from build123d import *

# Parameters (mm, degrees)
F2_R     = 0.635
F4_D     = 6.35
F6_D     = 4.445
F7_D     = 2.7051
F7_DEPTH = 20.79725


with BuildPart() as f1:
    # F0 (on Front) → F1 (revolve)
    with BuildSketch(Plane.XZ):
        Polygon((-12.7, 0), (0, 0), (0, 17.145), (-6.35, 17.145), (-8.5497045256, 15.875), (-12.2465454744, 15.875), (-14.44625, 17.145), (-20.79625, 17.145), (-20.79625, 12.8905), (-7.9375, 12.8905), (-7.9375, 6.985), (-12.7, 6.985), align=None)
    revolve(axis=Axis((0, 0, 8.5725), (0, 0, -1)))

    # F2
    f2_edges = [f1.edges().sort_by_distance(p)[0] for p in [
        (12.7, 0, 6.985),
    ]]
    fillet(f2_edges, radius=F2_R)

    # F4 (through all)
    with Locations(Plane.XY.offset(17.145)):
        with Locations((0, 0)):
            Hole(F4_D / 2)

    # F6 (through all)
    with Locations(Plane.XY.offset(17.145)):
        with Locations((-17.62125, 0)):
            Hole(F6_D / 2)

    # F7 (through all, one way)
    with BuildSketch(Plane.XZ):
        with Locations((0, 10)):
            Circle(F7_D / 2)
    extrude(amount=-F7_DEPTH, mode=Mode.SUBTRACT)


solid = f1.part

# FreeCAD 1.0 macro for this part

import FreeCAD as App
import Part
import Sketcher
Q = App.Units.Quantity


def edges_at(feature, points):
    """Names of the edges that pass closest to the given points."""
    edges = feature.Shape.Edges
    near = lambda p: min(range(len(edges)), key=lambda i: edges[i].distToShape(Part.Vertex(*p))[0])
    return sorted({f"Edge{near(p) + 1}" for p in points})

doc = App.newDocument("Part")
params = doc.addObject("Spreadsheet::Sheet", "Params")
for row, (alias, value) in enumerate([
    ("sketch1_width", "0.5 in"),
    ("sketch1_length", "0.1 in"),
    ("sketch1_width2", "0.25 in"),
    ("sketch1_width3", "0.1875 in"),
    ("sketch1_height", "0.675 in"),
    ("revolution_angle", "360 deg"),
    ("fillet_radius", "0.025 in"),
    ("sketch2_diameter", "0.25 in"),
    ("hole_diameter", "0.25 in"),
    ("sketch3_diameter", "0.175 in"),
    ("hole2_diameter", "0.175 in"),
], start=1):
    params.set(f"A{row}", alias)
    params.set(f"B{row}", "=" + value)
    params.setAlias(f"B{row}", alias)

body = doc.addObject("PartDesign::Body", "Body")

sketch1 = body.newObject("Sketcher::SketchObject", "Sketch")
sketch1.AttachmentSupport = (doc.getObject("XZ_Plane"), [""])
sketch1.MapMode = "FlatFace"
sketch1.addGeometry([
    Part.LineSegment(App.Vector(-12.7, 0, 0), App.Vector(0, 0, 0)),
    Part.LineSegment(App.Vector(0, 0, 0), App.Vector(0, 17.1, 0)),
    Part.LineSegment(App.Vector(0, 17.1, 0), App.Vector(-6.3, 17.1, 0)),
    Part.LineSegment(App.Vector(-6.3, 17.1, 0), App.Vector(-8.5, 15.9, 0)),
    Part.LineSegment(App.Vector(-8.5, 15.9, 0), App.Vector(-12.2, 15.9, 0)),
    Part.LineSegment(App.Vector(-12.2, 15.9, 0), App.Vector(-14.4, 17.1, 0)),
    Part.LineSegment(App.Vector(-14.4, 17.1, 0), App.Vector(-20.8, 17.1, 0)),
    Part.LineSegment(App.Vector(-20.8, 17.1, 0), App.Vector(-20.8, 12.9, 0)),
    Part.LineSegment(App.Vector(-20.8, 12.9, 0), App.Vector(-7.9, 12.9, 0)),
    Part.LineSegment(App.Vector(-7.9, 12.9, 0), App.Vector(-7.9, 7, 0)),
    Part.LineSegment(App.Vector(-7.9, 7, 0), App.Vector(-12.7, 7, 0)),
    Part.LineSegment(App.Vector(-12.7, 7, 0), App.Vector(-12.7, 0, 0)),
], False)
sketch1.addConstraint([
    Sketcher.Constraint("Coincident", 0, 2, 1, 1),
    Sketcher.Constraint("Coincident", 1, 2, 2, 1),
    Sketcher.Constraint("Coincident", 2, 2, 3, 1),
    Sketcher.Constraint("Coincident", 3, 2, 4, 1),
    Sketcher.Constraint("Coincident", 4, 2, 5, 1),
    Sketcher.Constraint("Coincident", 5, 2, 6, 1),
    Sketcher.Constraint("Coincident", 6, 2, 7, 1),
    Sketcher.Constraint("Coincident", 7, 2, 8, 1),
    Sketcher.Constraint("Coincident", 8, 2, 9, 1),
    Sketcher.Constraint("Coincident", 9, 2, 10, 1),
    Sketcher.Constraint("Coincident", 10, 2, 11, 1),
    Sketcher.Constraint("Coincident", 11, 2, 0, 1),
    Sketcher.Constraint("Horizontal", 0),
    Sketcher.Constraint("Vertical", 1),
    Sketcher.Constraint("Horizontal", 2),
    Sketcher.Constraint("Horizontal", 4),
    Sketcher.Constraint("Horizontal", 6),
    Sketcher.Constraint("Vertical", 7),
    Sketcher.Constraint("Horizontal", 8),
    Sketcher.Constraint("Vertical", 9),
    Sketcher.Constraint("Horizontal", 10),
    Sketcher.Constraint("Vertical", 11),
    Sketcher.Constraint("Coincident", 0, 2, -1, 1),
    Sketcher.Constraint("Horizontal", 2, 2, 5, 2),
    Sketcher.Constraint("Equal", 2, 6),
    Sketcher.Constraint("Equal", 3, 5),
    Sketcher.Constraint("DistanceX", 0, 1, 0, 2, Q("0.5 in")),
    Sketcher.Constraint("Angle", 3, Q("-150 deg")),
    Sketcher.Constraint("Distance", 3, Q("0.1 in")),
    Sketcher.Constraint("DistanceX", 2, 2, 2, 1, Q("0.25 in")),
    Sketcher.Constraint("DistanceY", 9, 2, 2, 2, Q("0.4 in")),
    Sketcher.Constraint("DistanceX", 10, 2, 10, 1, Q("0.1875 in")),
    Sketcher.Constraint("DistanceY", 1, 1, 1, 2, Q("0.675 in")),
    Sketcher.Constraint("DistanceY", 7, 2, 7, 1, Q("0.1675 in")),
    Sketcher.Constraint("DistanceX", 4, 2, 4, 1, 3.696841),
])
sketch1.setExpression("Constraints[26]", "Params.sketch1_width")
sketch1.setExpression("Constraints[28]", "Params.sketch1_length")
sketch1.setExpression("Constraints[29]", "Params.sketch1_width2")
sketch1.setExpression("Constraints[31]", "Params.sketch1_width3")
sketch1.setExpression("Constraints[32]", "Params.sketch1_height")
revolution = body.newObject("PartDesign::Revolution", "Revolution")
revolution.Profile = sketch1
revolution.ReferenceAxis = (sketch1, ["V_Axis"])
revolution.setExpression("Angle", "Params.revolution_angle")
doc.recompute()

fillet = body.newObject("PartDesign::Fillet", "Fillet")
fillet.Base = (revolution, edges_at(revolution, [(12.7, 0, 6.985)]))
fillet.setExpression("Radius", "Params.fillet_radius")

sketch2 = body.newObject("Sketcher::SketchObject", "Sketch001")
sketch2.AttachmentSupport = (doc.getObject("XY_Plane"), [""])
sketch2.MapMode = "FlatFace"
sketch2.AttachmentOffset = App.Placement(App.Vector(0, 0, 0.675 * 25.4), App.Rotation())
sketch2.addGeometry(Part.Circle(App.Vector(0, 0, 0), App.Vector(0, 0, 1), 3.2), False)
sketch2.addConstraint([
    Sketcher.Constraint("Coincident", 0, 3, -1, 1),
    Sketcher.Constraint("Diameter", 0, Q("0.25 in")),
])
sketch2.setExpression("Constraints[1]", "Params.sketch2_diameter")
doc.recompute()
hole = body.newObject("PartDesign::Hole", "Hole")
hole.Profile = sketch2
hole.ThreadType = "None"
hole.setExpression("Diameter", "Params.hole_diameter")
hole.DepthType = "ThroughAll"

sketch3 = body.newObject("Sketcher::SketchObject", "Sketch002")
sketch3.AttachmentSupport = (doc.getObject("XY_Plane"), [""])
sketch3.MapMode = "FlatFace"
sketch3.AttachmentOffset = App.Placement(App.Vector(0, 0, 0.675 * 25.4), App.Rotation())
sketch3.addGeometry(Part.Circle(App.Vector(-17.6, 0, 0), App.Vector(0, 0, 1), 2.2), False)
sketch3.addConstraint([
    Sketcher.Constraint("PointOnObject", 0, 3, -1),
    Sketcher.Constraint("Diameter", 0, Q("0.175 in")),
    Sketcher.Constraint("DistanceX", 0, 3, -1, 1, 17.62125),
])
sketch3.setExpression("Constraints[1]", "Params.sketch3_diameter")
doc.recompute()
hole2 = body.newObject("PartDesign::Hole", "Hole001")
hole2.Profile = sketch3
hole2.ThreadType = "None"
hole2.setExpression("Diameter", "Params.hole2_diameter")
hole2.DepthType = "ThroughAll"

sketch4 = body.newObject("Sketcher::SketchObject", "Sketch003")
sketch4.AttachmentSupport = (doc.getObject("XZ_Plane"), [""])
sketch4.MapMode = "FlatFace"
sketch4.addGeometry(Part.Circle(App.Vector(0, 10, 0), App.Vector(0, 0, 1), 1.4), False)
sketch4.addConstraint([
    Sketcher.Constraint("PointOnObject", 0, 3, -2),
    Sketcher.Constraint("Diameter", 0, Q("0.1065 in")),
    Sketcher.Constraint("DistanceY", -1, 1, 0, 3, 10.0),
])
pocket1 = body.newObject("PartDesign::Pocket", "Pocket")
pocket1.Profile = sketch4
pocket1.Type = "ThroughAll"

doc.recompute()
